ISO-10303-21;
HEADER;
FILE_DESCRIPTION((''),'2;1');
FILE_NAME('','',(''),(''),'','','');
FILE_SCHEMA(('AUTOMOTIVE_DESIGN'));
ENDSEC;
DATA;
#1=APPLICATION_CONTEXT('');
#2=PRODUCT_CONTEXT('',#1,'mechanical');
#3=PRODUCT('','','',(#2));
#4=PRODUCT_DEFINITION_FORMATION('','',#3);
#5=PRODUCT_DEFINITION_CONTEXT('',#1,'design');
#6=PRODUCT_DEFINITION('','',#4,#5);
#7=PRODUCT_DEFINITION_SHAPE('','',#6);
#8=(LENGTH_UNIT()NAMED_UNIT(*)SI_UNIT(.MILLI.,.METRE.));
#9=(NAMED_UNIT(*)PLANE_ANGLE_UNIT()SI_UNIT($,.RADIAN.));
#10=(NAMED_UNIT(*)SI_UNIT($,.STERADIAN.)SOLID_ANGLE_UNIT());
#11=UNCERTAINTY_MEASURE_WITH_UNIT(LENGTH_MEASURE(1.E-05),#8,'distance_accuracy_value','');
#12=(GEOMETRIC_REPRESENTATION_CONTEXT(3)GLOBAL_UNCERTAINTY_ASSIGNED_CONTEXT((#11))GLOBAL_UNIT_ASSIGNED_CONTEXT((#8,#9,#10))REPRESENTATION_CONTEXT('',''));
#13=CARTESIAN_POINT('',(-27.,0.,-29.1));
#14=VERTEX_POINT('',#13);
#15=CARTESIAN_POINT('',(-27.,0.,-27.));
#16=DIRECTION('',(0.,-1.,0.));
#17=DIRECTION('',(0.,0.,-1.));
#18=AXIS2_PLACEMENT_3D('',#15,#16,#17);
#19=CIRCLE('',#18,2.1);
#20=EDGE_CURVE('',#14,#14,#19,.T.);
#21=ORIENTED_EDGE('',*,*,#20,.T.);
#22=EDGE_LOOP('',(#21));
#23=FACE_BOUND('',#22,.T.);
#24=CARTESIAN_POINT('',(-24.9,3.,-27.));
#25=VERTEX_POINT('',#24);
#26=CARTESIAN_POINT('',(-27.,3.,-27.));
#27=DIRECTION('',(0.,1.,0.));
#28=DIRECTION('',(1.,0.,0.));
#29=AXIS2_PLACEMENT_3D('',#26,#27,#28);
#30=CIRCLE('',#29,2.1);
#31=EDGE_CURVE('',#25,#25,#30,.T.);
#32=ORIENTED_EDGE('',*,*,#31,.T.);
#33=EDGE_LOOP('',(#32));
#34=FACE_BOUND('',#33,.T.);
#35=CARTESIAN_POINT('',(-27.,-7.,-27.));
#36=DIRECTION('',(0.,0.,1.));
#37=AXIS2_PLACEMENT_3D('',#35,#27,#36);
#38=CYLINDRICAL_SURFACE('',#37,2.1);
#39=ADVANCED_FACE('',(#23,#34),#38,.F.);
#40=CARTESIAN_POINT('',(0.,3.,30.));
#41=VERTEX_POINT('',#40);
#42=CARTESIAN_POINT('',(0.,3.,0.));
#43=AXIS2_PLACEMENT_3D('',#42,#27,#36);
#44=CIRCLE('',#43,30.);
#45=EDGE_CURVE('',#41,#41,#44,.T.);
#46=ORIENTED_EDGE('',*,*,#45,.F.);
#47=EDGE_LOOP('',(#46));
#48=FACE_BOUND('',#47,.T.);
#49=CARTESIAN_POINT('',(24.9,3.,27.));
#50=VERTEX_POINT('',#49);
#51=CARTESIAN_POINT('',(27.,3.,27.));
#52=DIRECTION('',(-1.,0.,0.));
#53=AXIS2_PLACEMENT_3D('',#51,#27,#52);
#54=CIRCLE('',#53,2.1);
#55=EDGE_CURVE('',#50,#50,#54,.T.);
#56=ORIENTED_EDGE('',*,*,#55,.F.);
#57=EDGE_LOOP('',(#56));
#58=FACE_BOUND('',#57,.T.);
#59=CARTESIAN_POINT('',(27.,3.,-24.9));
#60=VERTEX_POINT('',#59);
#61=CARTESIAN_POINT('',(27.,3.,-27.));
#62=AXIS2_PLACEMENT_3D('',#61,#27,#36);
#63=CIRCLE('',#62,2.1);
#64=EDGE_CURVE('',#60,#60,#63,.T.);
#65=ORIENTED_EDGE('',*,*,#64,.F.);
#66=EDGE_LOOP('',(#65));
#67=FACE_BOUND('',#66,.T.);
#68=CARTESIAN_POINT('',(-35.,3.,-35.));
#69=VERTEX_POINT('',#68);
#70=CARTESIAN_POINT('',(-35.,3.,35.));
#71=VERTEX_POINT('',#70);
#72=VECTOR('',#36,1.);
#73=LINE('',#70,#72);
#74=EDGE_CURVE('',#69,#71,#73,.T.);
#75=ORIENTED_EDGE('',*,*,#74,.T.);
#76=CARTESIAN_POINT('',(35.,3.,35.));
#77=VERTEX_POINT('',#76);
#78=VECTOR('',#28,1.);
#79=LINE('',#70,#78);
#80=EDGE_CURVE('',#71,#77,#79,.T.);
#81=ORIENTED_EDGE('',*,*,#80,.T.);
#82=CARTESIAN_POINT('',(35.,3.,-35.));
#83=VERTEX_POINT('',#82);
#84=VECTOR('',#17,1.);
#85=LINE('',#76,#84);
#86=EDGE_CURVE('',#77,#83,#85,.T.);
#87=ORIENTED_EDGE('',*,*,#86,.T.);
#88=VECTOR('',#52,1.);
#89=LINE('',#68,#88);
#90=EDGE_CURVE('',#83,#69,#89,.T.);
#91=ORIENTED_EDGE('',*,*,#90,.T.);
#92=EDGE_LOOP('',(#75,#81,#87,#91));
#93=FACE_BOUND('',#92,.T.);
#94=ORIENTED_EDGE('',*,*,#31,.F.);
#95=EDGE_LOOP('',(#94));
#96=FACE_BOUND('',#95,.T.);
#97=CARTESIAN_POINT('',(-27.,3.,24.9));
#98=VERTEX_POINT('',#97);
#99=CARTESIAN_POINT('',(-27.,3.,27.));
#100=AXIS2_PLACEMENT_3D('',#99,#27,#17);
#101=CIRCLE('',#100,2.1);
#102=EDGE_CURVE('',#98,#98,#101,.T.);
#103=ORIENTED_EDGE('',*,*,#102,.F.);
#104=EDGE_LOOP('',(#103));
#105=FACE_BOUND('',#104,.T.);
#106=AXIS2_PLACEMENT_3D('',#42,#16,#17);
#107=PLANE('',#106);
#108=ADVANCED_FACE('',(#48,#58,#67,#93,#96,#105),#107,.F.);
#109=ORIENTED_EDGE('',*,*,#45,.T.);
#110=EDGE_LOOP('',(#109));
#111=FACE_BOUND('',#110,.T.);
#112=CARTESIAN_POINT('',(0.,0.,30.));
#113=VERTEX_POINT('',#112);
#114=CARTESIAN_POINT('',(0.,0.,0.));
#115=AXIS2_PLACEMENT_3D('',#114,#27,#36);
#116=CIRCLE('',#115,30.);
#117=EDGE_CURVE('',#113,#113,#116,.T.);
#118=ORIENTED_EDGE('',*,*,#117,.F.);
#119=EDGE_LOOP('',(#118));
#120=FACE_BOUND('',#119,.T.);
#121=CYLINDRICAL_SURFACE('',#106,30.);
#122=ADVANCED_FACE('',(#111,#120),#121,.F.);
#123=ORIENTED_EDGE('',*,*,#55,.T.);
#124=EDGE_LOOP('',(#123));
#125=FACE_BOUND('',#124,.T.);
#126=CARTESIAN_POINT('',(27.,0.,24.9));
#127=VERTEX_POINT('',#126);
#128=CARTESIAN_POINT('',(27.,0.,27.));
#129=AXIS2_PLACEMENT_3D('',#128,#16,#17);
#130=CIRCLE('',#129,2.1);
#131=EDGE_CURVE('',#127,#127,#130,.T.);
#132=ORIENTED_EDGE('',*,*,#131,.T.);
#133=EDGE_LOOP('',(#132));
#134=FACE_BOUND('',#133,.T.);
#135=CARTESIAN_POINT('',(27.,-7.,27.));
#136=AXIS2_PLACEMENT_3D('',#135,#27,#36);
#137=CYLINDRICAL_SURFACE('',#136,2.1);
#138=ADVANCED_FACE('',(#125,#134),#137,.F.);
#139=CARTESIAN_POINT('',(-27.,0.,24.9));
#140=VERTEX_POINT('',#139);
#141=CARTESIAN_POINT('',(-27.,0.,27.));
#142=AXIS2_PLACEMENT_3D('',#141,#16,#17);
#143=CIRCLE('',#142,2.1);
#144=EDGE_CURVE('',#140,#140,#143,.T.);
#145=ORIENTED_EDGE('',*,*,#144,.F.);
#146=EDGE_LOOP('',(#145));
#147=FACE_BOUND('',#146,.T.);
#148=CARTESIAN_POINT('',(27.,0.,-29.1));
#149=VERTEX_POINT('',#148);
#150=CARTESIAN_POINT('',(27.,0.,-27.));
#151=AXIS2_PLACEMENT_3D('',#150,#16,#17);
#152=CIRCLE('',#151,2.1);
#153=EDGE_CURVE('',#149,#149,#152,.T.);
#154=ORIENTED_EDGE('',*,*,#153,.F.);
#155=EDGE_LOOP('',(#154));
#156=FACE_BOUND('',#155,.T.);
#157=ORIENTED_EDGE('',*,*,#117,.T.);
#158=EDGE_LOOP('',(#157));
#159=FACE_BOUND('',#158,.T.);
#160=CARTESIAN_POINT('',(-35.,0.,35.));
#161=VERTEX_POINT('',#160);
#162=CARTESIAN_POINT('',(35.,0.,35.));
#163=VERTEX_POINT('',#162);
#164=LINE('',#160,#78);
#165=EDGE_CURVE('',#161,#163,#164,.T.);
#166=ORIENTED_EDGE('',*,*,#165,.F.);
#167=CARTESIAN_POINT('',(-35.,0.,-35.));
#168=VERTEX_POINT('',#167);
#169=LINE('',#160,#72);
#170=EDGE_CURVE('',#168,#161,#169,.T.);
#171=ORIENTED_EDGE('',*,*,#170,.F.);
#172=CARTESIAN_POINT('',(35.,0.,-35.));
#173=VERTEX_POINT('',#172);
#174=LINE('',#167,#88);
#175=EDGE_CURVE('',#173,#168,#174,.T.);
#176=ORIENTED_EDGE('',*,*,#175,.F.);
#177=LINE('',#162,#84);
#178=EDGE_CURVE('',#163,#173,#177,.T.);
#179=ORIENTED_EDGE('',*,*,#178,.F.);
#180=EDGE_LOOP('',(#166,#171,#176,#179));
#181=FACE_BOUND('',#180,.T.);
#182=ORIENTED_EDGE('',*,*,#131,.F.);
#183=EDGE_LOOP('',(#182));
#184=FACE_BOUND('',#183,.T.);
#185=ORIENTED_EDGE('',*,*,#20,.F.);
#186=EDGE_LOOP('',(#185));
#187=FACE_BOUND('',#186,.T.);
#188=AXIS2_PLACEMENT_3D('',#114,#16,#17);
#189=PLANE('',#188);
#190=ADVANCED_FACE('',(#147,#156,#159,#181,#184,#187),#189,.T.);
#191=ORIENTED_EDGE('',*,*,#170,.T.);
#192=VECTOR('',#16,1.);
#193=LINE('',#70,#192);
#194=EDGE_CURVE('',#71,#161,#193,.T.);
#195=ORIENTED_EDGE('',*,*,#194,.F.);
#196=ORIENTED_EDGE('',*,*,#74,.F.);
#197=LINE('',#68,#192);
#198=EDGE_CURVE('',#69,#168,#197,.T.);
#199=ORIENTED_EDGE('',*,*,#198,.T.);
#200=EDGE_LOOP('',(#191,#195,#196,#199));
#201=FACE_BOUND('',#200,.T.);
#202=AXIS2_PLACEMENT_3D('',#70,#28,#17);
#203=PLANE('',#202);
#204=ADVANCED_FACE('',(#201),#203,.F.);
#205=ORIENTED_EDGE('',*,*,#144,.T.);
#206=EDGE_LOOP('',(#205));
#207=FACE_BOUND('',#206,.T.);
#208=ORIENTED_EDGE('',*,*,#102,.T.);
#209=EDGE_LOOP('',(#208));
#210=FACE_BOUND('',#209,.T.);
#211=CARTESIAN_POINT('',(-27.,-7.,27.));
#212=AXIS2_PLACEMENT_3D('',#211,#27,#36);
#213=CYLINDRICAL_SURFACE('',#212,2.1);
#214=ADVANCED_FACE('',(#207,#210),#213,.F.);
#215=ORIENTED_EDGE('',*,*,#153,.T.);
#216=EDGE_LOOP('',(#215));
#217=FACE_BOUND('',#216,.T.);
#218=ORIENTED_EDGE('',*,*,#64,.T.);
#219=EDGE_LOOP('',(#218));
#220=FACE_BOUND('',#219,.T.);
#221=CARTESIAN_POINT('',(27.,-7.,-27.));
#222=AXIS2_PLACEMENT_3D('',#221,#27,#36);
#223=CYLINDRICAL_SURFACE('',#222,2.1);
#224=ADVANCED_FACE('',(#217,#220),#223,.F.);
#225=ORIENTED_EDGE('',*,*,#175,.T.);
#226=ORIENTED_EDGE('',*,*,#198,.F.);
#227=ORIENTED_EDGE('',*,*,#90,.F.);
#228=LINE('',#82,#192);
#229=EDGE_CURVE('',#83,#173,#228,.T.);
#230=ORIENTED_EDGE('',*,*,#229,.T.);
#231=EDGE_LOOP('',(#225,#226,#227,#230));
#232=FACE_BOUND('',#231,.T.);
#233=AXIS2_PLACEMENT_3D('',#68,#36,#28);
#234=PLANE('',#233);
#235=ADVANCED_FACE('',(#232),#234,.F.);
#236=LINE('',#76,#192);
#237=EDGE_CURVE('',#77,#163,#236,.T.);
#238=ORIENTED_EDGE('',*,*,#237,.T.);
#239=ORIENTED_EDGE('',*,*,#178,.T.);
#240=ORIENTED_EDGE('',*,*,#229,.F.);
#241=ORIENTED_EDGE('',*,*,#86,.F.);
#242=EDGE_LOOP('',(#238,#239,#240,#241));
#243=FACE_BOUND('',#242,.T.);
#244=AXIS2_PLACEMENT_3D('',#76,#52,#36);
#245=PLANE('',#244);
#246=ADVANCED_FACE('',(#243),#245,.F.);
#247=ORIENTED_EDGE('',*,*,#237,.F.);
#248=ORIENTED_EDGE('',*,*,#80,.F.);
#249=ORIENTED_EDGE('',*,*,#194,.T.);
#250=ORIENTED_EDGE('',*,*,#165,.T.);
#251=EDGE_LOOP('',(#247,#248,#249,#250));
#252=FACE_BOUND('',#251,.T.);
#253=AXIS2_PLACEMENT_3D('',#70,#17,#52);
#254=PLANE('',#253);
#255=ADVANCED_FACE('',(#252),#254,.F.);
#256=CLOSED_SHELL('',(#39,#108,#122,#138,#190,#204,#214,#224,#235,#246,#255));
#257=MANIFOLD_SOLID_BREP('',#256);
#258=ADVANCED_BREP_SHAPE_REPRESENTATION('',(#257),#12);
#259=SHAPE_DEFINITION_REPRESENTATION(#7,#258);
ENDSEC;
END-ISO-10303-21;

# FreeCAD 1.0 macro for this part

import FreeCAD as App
import Part
import Sketcher


def add_polygon(sketch, points):
    """Adds a closed chain of lines whose ends are joined by coincident constraints."""
    first, n = sketch.GeometryCount, len(points)
    for a, b in zip(points, points[1:] + points[:1]):
        sketch.addGeometry(Part.LineSegment(App.Vector(*a, 0), App.Vector(*b, 0)), False)
    for i in range(n):
        sketch.addConstraint(Sketcher.Constraint("Coincident", first + i, 2, first + (i + 1) % n, 1))

doc = App.newDocument("Part")
body = doc.addObject("PartDesign::Body", "Body")

sketch1 = body.newObject("Sketcher::SketchObject", "Sketch")
sketch1.AttachmentSupport = (doc.getObject("XZ_Plane"), [""])
sketch1.MapMode = "FlatFace"
add_polygon(sketch1, [(-35, -35), (-35, 35), (35, 35), (35, -35)])
sketch1.addGeometry(Part.Circle(App.Vector(0, 0, 0), App.Vector(0, 0, 1), 30), False)
sketch1.addConstraint(Sketcher.Constraint("Vertical", 0))
sketch1.addConstraint(Sketcher.Constraint("Horizontal", 1))
sketch1.addConstraint(Sketcher.Constraint("Vertical", 2))
sketch1.addConstraint(Sketcher.Constraint("Horizontal", 3))
sketch1.addConstraint(Sketcher.Constraint("Coincident", 4, 3, -1, 1))
sketch1.addConstraint(Sketcher.Constraint("Symmetric", 0, 2, 2, 2, -1, 1))
sketch1.addConstraint(Sketcher.Constraint("Equal", 3, 0))
sketch1.addConstraint(Sketcher.Constraint("Diameter", 4, 60.0))
sketch1.addConstraint(Sketcher.Constraint("DistanceX", 1, 1, 1, 2, 70.0))
pad1 = body.newObject("PartDesign::Pad", "Pad")
pad1.Profile = sketch1
pad1.Length = 3
pad1.Reversed = True

sketch2 = body.newObject("Sketcher::SketchObject", "Sketch001")
sketch2.AttachmentSupport = (doc.getObject("XZ_Plane"), [""])
sketch2.MapMode = "FlatFace"
sketch2.AttachmentOffset = App.Placement(App.Vector(0, 0, -3), App.Rotation())
sketch2.addGeometry(Part.Circle(App.Vector(27, -27, 0), App.Vector(0, 0, 1), 2.1), False)
sketch2.addConstraint(Sketcher.Constraint("Diameter", 0, 4.2))
sketch2.addConstraint(Sketcher.Constraint("DistanceX", -1, 1, 0, 3, 27.0))
sketch2.addConstraint(Sketcher.Constraint("DistanceY", 0, 3, -1, 1, 27.0))
pocket1 = body.newObject("PartDesign::Pocket", "Pocket")
pocket1.Profile = sketch2
pocket1.Length = 10
pocket1.Reversed = True
doc.recompute()

polarpattern = body.newObject("PartDesign::PolarPattern", "PolarPattern")
polarpattern.Originals = [pocket1]
polarpattern.Axis = (doc.getObject("Y_Axis"), [""])
polarpattern.Angle = 360
polarpattern.Occurrences = 4
body.Tip = polarpattern

doc.recompute()
